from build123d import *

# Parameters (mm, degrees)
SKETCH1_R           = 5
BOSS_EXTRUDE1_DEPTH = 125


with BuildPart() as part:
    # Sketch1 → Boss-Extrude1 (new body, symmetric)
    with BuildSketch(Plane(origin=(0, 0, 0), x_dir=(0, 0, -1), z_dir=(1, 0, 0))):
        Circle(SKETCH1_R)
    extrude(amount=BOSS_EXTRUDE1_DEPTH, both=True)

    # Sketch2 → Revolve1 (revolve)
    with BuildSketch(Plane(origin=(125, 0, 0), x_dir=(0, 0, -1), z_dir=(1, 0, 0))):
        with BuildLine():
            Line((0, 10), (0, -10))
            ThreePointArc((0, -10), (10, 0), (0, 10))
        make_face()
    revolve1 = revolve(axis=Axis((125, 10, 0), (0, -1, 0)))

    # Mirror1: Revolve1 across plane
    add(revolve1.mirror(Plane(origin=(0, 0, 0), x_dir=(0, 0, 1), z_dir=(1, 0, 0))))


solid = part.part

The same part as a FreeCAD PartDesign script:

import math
import FreeCAD as App
import Part
import Sketcher

V = App.Vector

doc = App.newDocument("Part")
body = doc.addObject("PartDesign::Body", "Body")

sketch1 = doc.addObject("Sketcher::SketchObject", "Sketch")
body.addObject(sketch1)
sketch1.AttachmentSupport = (doc.YZ_Plane, [""])
sketch1.MapMode = "FlatFace"
sketch1.addGeometry(Part.Circle(V(0, 0, 0), V(0, 0, 1), 5), False)
sketch1.addConstraint([
    Sketcher.Constraint("Coincident", 0, 3, -1, 1),
    Sketcher.Constraint("Diameter", 0, 10.0),
])
pad1 = doc.addObject("PartDesign::Pad", "Pad")
body.addObject(pad1)
pad1.Profile = sketch1
pad1.Length = 250
pad1.Midplane = True

sketch2 = doc.addObject("Sketcher::SketchObject", "Sketch001")
body.addObject(sketch2)
sketch2.AttachmentSupport = (doc.YZ_Plane, [""])
sketch2.MapMode = "FlatFace"
sketch2.AttachmentOffset = App.Placement(V(0, 0, 125), App.Rotation())
sketch2.addGeometry([
    Part.LineSegment(V(10, 0, 0), V(-10, 0, 0)),
    Part.ArcOfCircle(Part.Circle(V(0, 0, 0), V(0, 0, 1), 10), math.radians(180), math.radians(360)),
], False)
sketch2.addConstraint([
    Sketcher.Constraint("Coincident", 0, 1, 1, 2),
    Sketcher.Constraint("Coincident", 1, 1, 0, 2),
    Sketcher.Constraint("Horizontal", 0),
    Sketcher.Constraint("Coincident", 1, 3, -1, 1),
    Sketcher.Constraint("PointOnObject", 0, 1, -1),
    Sketcher.Constraint("Radius", 1, 10.0),
])
revolution = doc.addObject("PartDesign::Revolution", "Revolution")
body.addObject(revolution)
revolution.Profile = sketch2
revolution.ReferenceAxis = (sketch2, ["H_Axis"])
revolution.Angle = 360
doc.recompute()

mirrored = doc.addObject("PartDesign::Mirrored", "Mirrored")
body.addObject(mirrored)
mirrored.Originals = [revolution]
mirrored.MirrorPlane = (doc.YZ_Plane, [""])
body.Tip = mirrored

doc.recompute()
